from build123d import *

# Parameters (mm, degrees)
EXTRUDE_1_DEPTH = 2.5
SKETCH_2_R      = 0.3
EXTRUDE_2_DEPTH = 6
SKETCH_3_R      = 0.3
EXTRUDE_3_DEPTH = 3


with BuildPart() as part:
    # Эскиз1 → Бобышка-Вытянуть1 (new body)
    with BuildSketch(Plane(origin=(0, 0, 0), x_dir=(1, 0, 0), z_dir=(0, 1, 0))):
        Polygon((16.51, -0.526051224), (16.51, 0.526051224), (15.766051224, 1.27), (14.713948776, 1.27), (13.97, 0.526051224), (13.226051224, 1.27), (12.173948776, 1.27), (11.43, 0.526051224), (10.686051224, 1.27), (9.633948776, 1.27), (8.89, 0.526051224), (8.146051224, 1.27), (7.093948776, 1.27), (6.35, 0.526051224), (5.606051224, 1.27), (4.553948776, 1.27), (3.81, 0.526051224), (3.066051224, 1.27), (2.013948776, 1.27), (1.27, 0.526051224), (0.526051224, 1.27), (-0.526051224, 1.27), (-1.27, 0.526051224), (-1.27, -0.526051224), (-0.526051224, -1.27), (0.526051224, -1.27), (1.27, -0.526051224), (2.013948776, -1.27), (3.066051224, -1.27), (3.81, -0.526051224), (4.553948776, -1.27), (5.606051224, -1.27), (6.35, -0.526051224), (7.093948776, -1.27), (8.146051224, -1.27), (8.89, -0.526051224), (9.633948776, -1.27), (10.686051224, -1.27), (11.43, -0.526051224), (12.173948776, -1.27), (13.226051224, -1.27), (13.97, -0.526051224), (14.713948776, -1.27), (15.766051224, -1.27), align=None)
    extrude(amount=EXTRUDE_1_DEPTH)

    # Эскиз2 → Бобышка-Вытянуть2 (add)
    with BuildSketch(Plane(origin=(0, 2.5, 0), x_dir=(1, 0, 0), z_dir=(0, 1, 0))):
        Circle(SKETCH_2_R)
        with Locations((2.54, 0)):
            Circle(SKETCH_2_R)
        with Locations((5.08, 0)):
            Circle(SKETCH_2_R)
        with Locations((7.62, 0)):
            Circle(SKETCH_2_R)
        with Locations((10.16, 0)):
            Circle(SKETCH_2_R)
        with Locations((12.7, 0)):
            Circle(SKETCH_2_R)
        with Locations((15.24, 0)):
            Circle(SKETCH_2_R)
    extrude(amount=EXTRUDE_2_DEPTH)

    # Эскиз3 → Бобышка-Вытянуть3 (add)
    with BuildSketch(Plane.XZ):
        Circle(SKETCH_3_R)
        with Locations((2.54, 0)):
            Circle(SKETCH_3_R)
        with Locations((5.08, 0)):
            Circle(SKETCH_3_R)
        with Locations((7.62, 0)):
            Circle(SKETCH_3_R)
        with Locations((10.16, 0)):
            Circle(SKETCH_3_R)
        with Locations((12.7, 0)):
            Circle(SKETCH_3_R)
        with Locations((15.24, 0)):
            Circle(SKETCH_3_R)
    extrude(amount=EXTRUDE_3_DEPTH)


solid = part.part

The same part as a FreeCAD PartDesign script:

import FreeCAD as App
import Part
import Sketcher

V = App.Vector
Q = App.Units.Quantity


def add_polygon(sketch, points):
    """Adds a closed chain of lines whose ends are joined by coincident constraints."""
    first, n = sketch.GeometryCount, len(points)
    for a, b in zip(points, points[1:] + points[:1]):
        sketch.addGeometry(Part.LineSegment(App.Vector(*a, 0), App.Vector(*b, 0)), False)
    for i in range(n):
        sketch.addConstraint(Sketcher.Constraint("Coincident", first + i, 2, first + (i + 1) % n, 1))

doc = App.newDocument("Part")
body = doc.addObject("PartDesign::Body", "Body")

# Sketch on XZ plane
sketch1 = body.newObject("Sketcher::SketchObject", "Sketch")
sketch1.AttachmentSupport = (doc.getObject("XZ_Plane"), [""])
sketch1.MapMode = "FlatFace"
add_polygon(sketch1, [(16.51, 0.526051), (16.51, -0.526051), (15.766051, -1.27), (14.713949, -1.27), (13.97, -0.526051), (13.226051, -1.27), (12.173949, -1.27), (11.43, -0.526051), (10.686051, -1.27), (9.633949, -1.27), (8.89, -0.526051), (8.146051, -1.27), (7.093949, -1.27), (6.35, -0.526051), (5.606051, -1.27), (4.553949, -1.27), (3.81, -0.526051), (3.066051, -1.27), (2.013949, -1.27), (1.27, -0.526051), (0.526051, -1.27), (-0.526051, -1.27), (-1.27, -0.526051), (-1.27, 0.526051), (-0.526051, 1.27), (0.526051, 1.27), (1.27, 0.526051), (2.013949, 1.27), (3.066051, 1.27), (3.81, 0.526051), (4.553949, 1.27), (5.606051, 1.27), (6.35, 0.526051), (7.093949, 1.27), (8.146051, 1.27), (8.89, 0.526051), (9.633949, 1.27), (10.686051, 1.27), (11.43, 0.526051), (12.173949, 1.27), (13.226051, 1.27), (13.97, 0.526051), (14.713949, 1.27), (15.766051, 1.27)])  # lines 0-43
sketch1.addConstraint(Sketcher.Constraint("Vertical", 0))
sketch1.addConstraint(Sketcher.Constraint("Horizontal", 2))
sketch1.addConstraint(Sketcher.Constraint("Horizontal", 5))
sketch1.addConstraint(Sketcher.Constraint("Horizontal", 8))
sketch1.addConstraint(Sketcher.Constraint("Horizontal", 11))
sketch1.addConstraint(Sketcher.Constraint("Horizontal", 14))
sketch1.addConstraint(Sketcher.Constraint("Horizontal", 17))
sketch1.addConstraint(Sketcher.Constraint("Horizontal", 20))
sketch1.addConstraint(Sketcher.Constraint("Vertical", 22))
sketch1.addConstraint(Sketcher.Constraint("Horizontal", 24))
sketch1.addConstraint(Sketcher.Constraint("Horizontal", 27))
sketch1.addConstraint(Sketcher.Constraint("Horizontal", 30))
sketch1.addConstraint(Sketcher.Constraint("Horizontal", 33))
sketch1.addConstraint(Sketcher.Constraint("Horizontal", 36))
sketch1.addConstraint(Sketcher.Constraint("Horizontal", 39))
sketch1.addConstraint(Sketcher.Constraint("Horizontal", 42))
sketch1.addConstraint(Sketcher.Constraint("Symmetric", 18, 2, 22, 2, -1, 1))
sketch1.addConstraint(Sketcher.Constraint("Symmetric", 19, 2, 23, 2, -1, 1))
sketch1.addConstraint(Sketcher.Constraint("Symmetric", 21, 2, 25, 2, -1, 1))
sketch1.addConstraint(Sketcher.Constraint("Symmetric", 17, 2, 26, 2, -1))
sketch1.addConstraint(Sketcher.Constraint("Symmetric", 15, 2, 28, 2, -1))
sketch1.addConstraint(Sketcher.Constraint("Symmetric", 14, 2, 29, 2, -1))
sketch1.addConstraint(Sketcher.Constraint("Symmetric", 12, 2, 31, 2, -1))
sketch1.addConstraint(Sketcher.Constraint("Symmetric", 11, 2, 32, 2, -1))
sketch1.addConstraint(Sketcher.Constraint("Symmetric", 9, 2, 34, 2, -1))
sketch1.addConstraint(Sketcher.Constraint("Symmetric", 8, 2, 35, 2, -1))
sketch1.addConstraint(Sketcher.Constraint("Symmetric", 6, 2, 37, 2, -1))
sketch1.addConstraint(Sketcher.Constraint("Symmetric", 5, 2, 38, 2, -1))
sketch1.addConstraint(Sketcher.Constraint("Symmetric", 3, 2, 40, 2, -1))
sketch1.addConstraint(Sketcher.Constraint("Symmetric", 2, 2, 41, 2, -1))
sketch1.addConstraint(Sketcher.Constraint("Perpendicular", 1, 3))
sketch1.addConstraint(Sketcher.Constraint("Perpendicular", 3, 4))
sketch1.addConstraint(Sketcher.Constraint("Perpendicular", 4, 6))
sketch1.addConstraint(Sketcher.Constraint("Perpendicular", 6, 7))
sketch1.addConstraint(Sketcher.Constraint("Perpendicular", 7, 9))
sketch1.addConstraint(Sketcher.Constraint("Perpendicular", 9, 10))
sketch1.addConstraint(Sketcher.Constraint("Perpendicular", 10, 12))
sketch1.addConstraint(Sketcher.Constraint("Perpendicular", 12, 13))
sketch1.addConstraint(Sketcher.Constraint("Perpendicular", 13, 15))
sketch1.addConstraint(Sketcher.Constraint("Perpendicular", 15, 16))
sketch1.addConstraint(Sketcher.Constraint("Perpendicular", 16, 18))
sketch1.addConstraint(Sketcher.Constraint("Perpendicular", 18, 19))
sketch1.addConstraint(Sketcher.Constraint("Perpendicular", 19, 21))
sketch1.addConstraint(Sketcher.Constraint("Perpendicular", 23, 25))
sketch1.addConstraint(Sketcher.Constraint("Perpendicular", 25, 26))
sketch1.addConstraint(Sketcher.Constraint("Perpendicular", 26, 28))
sketch1.addConstraint(Sketcher.Constraint("Perpendicular", 28, 29))
sketch1.addConstraint(Sketcher.Constraint("Perpendicular", 29, 31))
sketch1.addConstraint(Sketcher.Constraint("Perpendicular", 32, 34))
sketch1.addConstraint(Sketcher.Constraint("Perpendicular", 35, 37))
sketch1.addConstraint(Sketcher.Constraint("Perpendicular", 38, 40))
sketch1.addConstraint(Sketcher.Constraint("Perpendicular", 41, 43))
sketch1.addConstraint(Sketcher.Constraint("Horizontal", 0, 2, 3, 2))
sketch1.addConstraint(Sketcher.Constraint("Horizontal", 2, 2, 4, 2))
sketch1.addConstraint(Sketcher.Constraint("Horizontal", 3, 2, 6, 2))
sketch1.addConstraint(Sketcher.Constraint("Horizontal", 5, 2, 7, 2))
sketch1.addConstraint(Sketcher.Constraint("Horizontal", 6, 2, 9, 2))
sketch1.addConstraint(Sketcher.Constraint("Horizontal", 8, 2, 10, 2))
sketch1.addConstraint(Sketcher.Constraint("Horizontal", 9, 2, 12, 2))
sketch1.addConstraint(Sketcher.Constraint("Horizontal", 11, 2, 13, 2))
sketch1.addConstraint(Sketcher.Constraint("Horizontal", 12, 2, 15, 2))
sketch1.addConstraint(Sketcher.Constraint("Horizontal", 14, 2, 16, 2))
sketch1.addConstraint(Sketcher.Constraint("Horizontal", 15, 2, 18, 2))
sketch1.addConstraint(Sketcher.Constraint("Horizontal", 17, 2, 19, 2))
sketch1.addConstraint(Sketcher.Constraint("Horizontal", 40, 2, 43, 2))
sketch1.addConstraint(Sketcher.Constraint("Equal", 2, 5))
sketch1.addConstraint(Sketcher.Constraint("Equal", 5, 8))
sketch1.addConstraint(Sketcher.Constraint("Equal", 8, 11))
sketch1.addConstraint(Sketcher.Constraint("Equal", 11, 14))
sketch1.addConstraint(Sketcher.Constraint("Equal", 14, 17))
sketch1.addConstraint(Sketcher.Constraint("Equal", 17, 20))
sketch1.addConstraint(Sketcher.Constraint("Equal", 42, 0))
sketch1.addConstraint(Sketcher.Constraint("DistanceX", -1, 1, 0, 2, Q("16.51 mm")))
sketch1.addConstraint(Sketcher.Constraint("DistanceX", 2, 2, 2, 1, Q("1.052102 mm")))
pad1 = body.newObject("PartDesign::Pad", "Pad")
pad1.Profile = sketch1
pad1.Length = 2.5
pad1.Reversed = True

# Sketch on XZ plane
sketch2 = body.newObject("Sketcher::SketchObject", "Sketch001")
sketch2.AttachmentSupport = (doc.getObject("XZ_Plane"), [""])
sketch2.MapMode = "FlatFace"
sketch2.AttachmentOffset = App.Placement(V(0, 0, -2.5), App.Rotation())
sketch2.addGeometry(Part.Circle(V(0, 0, 0), V(0, 0, 1), 0.3), False)
sketch2.addGeometry(Part.Circle(V(2.54, 0, 0), V(0, 0, 1), 0.3), False)
sketch2.addGeometry(Part.Circle(V(5.08, 0, 0), V(0, 0, 1), 0.3), False)
sketch2.addGeometry(Part.Circle(V(7.62, 0, 0), V(0, 0, 1), 0.3), False)
sketch2.addGeometry(Part.Circle(V(10.16, 0, 0), V(0, 0, 1), 0.3), False)
sketch2.addGeometry(Part.Circle(V(12.7, 0, 0), V(0, 0, 1), 0.3), False)
sketch2.addGeometry(Part.Circle(V(15.24, 0, 0), V(0, 0, 1), 0.3), False)
sketch2.addConstraint(Sketcher.Constraint("Coincident", 0, 3, -1, 1))
sketch2.addConstraint(Sketcher.Constraint("Equal", 0, 1))
sketch2.addConstraint(Sketcher.Constraint("Equal", 1, 2))
sketch2.addConstraint(Sketcher.Constraint("Equal", 2, 3))
sketch2.addConstraint(Sketcher.Constraint("Equal", 3, 4))
sketch2.addConstraint(Sketcher.Constraint("Equal", 4, 5))
sketch2.addConstraint(Sketcher.Constraint("Equal", 5, 6))
sketch2.addConstraint(Sketcher.Constraint("PointOnObject", 1, 3, -1))
sketch2.addConstraint(Sketcher.Constraint("PointOnObject", 2, 3, -1))
sketch2.addConstraint(Sketcher.Constraint("PointOnObject", 3, 3, -1))
sketch2.addConstraint(Sketcher.Constraint("PointOnObject", 4, 3, -1))
sketch2.addConstraint(Sketcher.Constraint("PointOnObject", 5, 3, -1))
sketch2.addConstraint(Sketcher.Constraint("PointOnObject", 6, 3, -1))
sketch2.addConstraint(Sketcher.Constraint("Diameter", 0, Q("0.6 mm")))
sketch2.addConstraint(Sketcher.Constraint("DistanceX", -1, 1, 5, 3, Q("12.7 mm")))
sketch2.addConstraint(Sketcher.Constraint("DistanceX", 1, 3, 6, 3, Q("12.7 mm")))
sketch2.addConstraint(Sketcher.Constraint("DistanceX", -1, 1, 1, 3, Q("2.54 mm")))
sketch2.addConstraint(Sketcher.Constraint("DistanceX", -1, 1, 2, 3, Q("5.08 mm")))
sketch2.addConstraint(Sketcher.Constraint("DistanceX", -1, 1, 3, 3, Q("7.62 mm")))
sketch2.addConstraint(Sketcher.Constraint("DistanceX", -1, 1, 4, 3, Q("10.16 mm")))
pad2 = body.newObject("PartDesign::Pad", "Pad001")
pad2.Profile = sketch2
pad2.Length = 6
pad2.Reversed = True

# Sketch on XZ plane
sketch3 = body.newObject("Sketcher::SketchObject", "Sketch002")
sketch3.AttachmentSupport = (doc.getObject("XZ_Plane"), [""])
sketch3.MapMode = "FlatFace"
sketch3.addGeometry(Part.Circle(V(0, 0, 0), V(0, 0, 1), 0.3), False)
sketch3.addGeometry(Part.Circle(V(2.54, 0, 0), V(0, 0, 1), 0.3), False)
sketch3.addGeometry(Part.Circle(V(5.08, 0, 0), V(0, 0, 1), 0.3), False)
sketch3.addGeometry(Part.Circle(V(7.62, 0, 0), V(0, 0, 1), 0.3), False)
sketch3.addGeometry(Part.Circle(V(10.16, 0, 0), V(0, 0, 1), 0.3), False)
sketch3.addGeometry(Part.Circle(V(12.7, 0, 0), V(0, 0, 1), 0.3), False)
sketch3.addGeometry(Part.Circle(V(15.24, 0, 0), V(0, 0, 1), 0.3), False)
sketch3.addConstraint(Sketcher.Constraint("Coincident", 0, 3, -1, 1))
sketch3.addConstraint(Sketcher.Constraint("Equal", 0, 1))
sketch3.addConstraint(Sketcher.Constraint("Equal", 1, 2))
sketch3.addConstraint(Sketcher.Constraint("Equal", 2, 3))
sketch3.addConstraint(Sketcher.Constraint("Equal", 3, 4))
sketch3.addConstraint(Sketcher.Constraint("Equal", 4, 5))
sketch3.addConstraint(Sketcher.Constraint("Equal", 5, 6))
sketch3.addConstraint(Sketcher.Constraint("PointOnObject", 1, 3, -1))
sketch3.addConstraint(Sketcher.Constraint("PointOnObject", 2, 3, -1))
sketch3.addConstraint(Sketcher.Constraint("PointOnObject", 3, 3, -1))
sketch3.addConstraint(Sketcher.Constraint("PointOnObject", 4, 3, -1))
sketch3.addConstraint(Sketcher.Constraint("PointOnObject", 5, 3, -1))
sketch3.addConstraint(Sketcher.Constraint("PointOnObject", 6, 3, -1))
sketch3.addConstraint(Sketcher.Constraint("Diameter", 0, Q("0.6 mm")))
sketch3.addConstraint(Sketcher.Constraint("DistanceX", -1, 1, 5, 3, Q("12.7 mm")))
sketch3.addConstraint(Sketcher.Constraint("DistanceX", 1, 3, 6, 3, Q("12.7 mm")))
sketch3.addConstraint(Sketcher.Constraint("DistanceX", -1, 1, 1, 3, Q("2.54 mm")))
sketch3.addConstraint(Sketcher.Constraint("DistanceX", -1, 1, 2, 3, Q("5.08 mm")))
sketch3.addConstraint(Sketcher.Constraint("DistanceX", -1, 1, 3, 3, Q("7.62 mm")))
sketch3.addConstraint(Sketcher.Constraint("DistanceX", -1, 1, 4, 3, Q("10.16 mm")))
pad3 = body.newObject("PartDesign::Pad", "Pad002")
pad3.Profile = sketch3
pad3.Length = 3

doc.recompute()
